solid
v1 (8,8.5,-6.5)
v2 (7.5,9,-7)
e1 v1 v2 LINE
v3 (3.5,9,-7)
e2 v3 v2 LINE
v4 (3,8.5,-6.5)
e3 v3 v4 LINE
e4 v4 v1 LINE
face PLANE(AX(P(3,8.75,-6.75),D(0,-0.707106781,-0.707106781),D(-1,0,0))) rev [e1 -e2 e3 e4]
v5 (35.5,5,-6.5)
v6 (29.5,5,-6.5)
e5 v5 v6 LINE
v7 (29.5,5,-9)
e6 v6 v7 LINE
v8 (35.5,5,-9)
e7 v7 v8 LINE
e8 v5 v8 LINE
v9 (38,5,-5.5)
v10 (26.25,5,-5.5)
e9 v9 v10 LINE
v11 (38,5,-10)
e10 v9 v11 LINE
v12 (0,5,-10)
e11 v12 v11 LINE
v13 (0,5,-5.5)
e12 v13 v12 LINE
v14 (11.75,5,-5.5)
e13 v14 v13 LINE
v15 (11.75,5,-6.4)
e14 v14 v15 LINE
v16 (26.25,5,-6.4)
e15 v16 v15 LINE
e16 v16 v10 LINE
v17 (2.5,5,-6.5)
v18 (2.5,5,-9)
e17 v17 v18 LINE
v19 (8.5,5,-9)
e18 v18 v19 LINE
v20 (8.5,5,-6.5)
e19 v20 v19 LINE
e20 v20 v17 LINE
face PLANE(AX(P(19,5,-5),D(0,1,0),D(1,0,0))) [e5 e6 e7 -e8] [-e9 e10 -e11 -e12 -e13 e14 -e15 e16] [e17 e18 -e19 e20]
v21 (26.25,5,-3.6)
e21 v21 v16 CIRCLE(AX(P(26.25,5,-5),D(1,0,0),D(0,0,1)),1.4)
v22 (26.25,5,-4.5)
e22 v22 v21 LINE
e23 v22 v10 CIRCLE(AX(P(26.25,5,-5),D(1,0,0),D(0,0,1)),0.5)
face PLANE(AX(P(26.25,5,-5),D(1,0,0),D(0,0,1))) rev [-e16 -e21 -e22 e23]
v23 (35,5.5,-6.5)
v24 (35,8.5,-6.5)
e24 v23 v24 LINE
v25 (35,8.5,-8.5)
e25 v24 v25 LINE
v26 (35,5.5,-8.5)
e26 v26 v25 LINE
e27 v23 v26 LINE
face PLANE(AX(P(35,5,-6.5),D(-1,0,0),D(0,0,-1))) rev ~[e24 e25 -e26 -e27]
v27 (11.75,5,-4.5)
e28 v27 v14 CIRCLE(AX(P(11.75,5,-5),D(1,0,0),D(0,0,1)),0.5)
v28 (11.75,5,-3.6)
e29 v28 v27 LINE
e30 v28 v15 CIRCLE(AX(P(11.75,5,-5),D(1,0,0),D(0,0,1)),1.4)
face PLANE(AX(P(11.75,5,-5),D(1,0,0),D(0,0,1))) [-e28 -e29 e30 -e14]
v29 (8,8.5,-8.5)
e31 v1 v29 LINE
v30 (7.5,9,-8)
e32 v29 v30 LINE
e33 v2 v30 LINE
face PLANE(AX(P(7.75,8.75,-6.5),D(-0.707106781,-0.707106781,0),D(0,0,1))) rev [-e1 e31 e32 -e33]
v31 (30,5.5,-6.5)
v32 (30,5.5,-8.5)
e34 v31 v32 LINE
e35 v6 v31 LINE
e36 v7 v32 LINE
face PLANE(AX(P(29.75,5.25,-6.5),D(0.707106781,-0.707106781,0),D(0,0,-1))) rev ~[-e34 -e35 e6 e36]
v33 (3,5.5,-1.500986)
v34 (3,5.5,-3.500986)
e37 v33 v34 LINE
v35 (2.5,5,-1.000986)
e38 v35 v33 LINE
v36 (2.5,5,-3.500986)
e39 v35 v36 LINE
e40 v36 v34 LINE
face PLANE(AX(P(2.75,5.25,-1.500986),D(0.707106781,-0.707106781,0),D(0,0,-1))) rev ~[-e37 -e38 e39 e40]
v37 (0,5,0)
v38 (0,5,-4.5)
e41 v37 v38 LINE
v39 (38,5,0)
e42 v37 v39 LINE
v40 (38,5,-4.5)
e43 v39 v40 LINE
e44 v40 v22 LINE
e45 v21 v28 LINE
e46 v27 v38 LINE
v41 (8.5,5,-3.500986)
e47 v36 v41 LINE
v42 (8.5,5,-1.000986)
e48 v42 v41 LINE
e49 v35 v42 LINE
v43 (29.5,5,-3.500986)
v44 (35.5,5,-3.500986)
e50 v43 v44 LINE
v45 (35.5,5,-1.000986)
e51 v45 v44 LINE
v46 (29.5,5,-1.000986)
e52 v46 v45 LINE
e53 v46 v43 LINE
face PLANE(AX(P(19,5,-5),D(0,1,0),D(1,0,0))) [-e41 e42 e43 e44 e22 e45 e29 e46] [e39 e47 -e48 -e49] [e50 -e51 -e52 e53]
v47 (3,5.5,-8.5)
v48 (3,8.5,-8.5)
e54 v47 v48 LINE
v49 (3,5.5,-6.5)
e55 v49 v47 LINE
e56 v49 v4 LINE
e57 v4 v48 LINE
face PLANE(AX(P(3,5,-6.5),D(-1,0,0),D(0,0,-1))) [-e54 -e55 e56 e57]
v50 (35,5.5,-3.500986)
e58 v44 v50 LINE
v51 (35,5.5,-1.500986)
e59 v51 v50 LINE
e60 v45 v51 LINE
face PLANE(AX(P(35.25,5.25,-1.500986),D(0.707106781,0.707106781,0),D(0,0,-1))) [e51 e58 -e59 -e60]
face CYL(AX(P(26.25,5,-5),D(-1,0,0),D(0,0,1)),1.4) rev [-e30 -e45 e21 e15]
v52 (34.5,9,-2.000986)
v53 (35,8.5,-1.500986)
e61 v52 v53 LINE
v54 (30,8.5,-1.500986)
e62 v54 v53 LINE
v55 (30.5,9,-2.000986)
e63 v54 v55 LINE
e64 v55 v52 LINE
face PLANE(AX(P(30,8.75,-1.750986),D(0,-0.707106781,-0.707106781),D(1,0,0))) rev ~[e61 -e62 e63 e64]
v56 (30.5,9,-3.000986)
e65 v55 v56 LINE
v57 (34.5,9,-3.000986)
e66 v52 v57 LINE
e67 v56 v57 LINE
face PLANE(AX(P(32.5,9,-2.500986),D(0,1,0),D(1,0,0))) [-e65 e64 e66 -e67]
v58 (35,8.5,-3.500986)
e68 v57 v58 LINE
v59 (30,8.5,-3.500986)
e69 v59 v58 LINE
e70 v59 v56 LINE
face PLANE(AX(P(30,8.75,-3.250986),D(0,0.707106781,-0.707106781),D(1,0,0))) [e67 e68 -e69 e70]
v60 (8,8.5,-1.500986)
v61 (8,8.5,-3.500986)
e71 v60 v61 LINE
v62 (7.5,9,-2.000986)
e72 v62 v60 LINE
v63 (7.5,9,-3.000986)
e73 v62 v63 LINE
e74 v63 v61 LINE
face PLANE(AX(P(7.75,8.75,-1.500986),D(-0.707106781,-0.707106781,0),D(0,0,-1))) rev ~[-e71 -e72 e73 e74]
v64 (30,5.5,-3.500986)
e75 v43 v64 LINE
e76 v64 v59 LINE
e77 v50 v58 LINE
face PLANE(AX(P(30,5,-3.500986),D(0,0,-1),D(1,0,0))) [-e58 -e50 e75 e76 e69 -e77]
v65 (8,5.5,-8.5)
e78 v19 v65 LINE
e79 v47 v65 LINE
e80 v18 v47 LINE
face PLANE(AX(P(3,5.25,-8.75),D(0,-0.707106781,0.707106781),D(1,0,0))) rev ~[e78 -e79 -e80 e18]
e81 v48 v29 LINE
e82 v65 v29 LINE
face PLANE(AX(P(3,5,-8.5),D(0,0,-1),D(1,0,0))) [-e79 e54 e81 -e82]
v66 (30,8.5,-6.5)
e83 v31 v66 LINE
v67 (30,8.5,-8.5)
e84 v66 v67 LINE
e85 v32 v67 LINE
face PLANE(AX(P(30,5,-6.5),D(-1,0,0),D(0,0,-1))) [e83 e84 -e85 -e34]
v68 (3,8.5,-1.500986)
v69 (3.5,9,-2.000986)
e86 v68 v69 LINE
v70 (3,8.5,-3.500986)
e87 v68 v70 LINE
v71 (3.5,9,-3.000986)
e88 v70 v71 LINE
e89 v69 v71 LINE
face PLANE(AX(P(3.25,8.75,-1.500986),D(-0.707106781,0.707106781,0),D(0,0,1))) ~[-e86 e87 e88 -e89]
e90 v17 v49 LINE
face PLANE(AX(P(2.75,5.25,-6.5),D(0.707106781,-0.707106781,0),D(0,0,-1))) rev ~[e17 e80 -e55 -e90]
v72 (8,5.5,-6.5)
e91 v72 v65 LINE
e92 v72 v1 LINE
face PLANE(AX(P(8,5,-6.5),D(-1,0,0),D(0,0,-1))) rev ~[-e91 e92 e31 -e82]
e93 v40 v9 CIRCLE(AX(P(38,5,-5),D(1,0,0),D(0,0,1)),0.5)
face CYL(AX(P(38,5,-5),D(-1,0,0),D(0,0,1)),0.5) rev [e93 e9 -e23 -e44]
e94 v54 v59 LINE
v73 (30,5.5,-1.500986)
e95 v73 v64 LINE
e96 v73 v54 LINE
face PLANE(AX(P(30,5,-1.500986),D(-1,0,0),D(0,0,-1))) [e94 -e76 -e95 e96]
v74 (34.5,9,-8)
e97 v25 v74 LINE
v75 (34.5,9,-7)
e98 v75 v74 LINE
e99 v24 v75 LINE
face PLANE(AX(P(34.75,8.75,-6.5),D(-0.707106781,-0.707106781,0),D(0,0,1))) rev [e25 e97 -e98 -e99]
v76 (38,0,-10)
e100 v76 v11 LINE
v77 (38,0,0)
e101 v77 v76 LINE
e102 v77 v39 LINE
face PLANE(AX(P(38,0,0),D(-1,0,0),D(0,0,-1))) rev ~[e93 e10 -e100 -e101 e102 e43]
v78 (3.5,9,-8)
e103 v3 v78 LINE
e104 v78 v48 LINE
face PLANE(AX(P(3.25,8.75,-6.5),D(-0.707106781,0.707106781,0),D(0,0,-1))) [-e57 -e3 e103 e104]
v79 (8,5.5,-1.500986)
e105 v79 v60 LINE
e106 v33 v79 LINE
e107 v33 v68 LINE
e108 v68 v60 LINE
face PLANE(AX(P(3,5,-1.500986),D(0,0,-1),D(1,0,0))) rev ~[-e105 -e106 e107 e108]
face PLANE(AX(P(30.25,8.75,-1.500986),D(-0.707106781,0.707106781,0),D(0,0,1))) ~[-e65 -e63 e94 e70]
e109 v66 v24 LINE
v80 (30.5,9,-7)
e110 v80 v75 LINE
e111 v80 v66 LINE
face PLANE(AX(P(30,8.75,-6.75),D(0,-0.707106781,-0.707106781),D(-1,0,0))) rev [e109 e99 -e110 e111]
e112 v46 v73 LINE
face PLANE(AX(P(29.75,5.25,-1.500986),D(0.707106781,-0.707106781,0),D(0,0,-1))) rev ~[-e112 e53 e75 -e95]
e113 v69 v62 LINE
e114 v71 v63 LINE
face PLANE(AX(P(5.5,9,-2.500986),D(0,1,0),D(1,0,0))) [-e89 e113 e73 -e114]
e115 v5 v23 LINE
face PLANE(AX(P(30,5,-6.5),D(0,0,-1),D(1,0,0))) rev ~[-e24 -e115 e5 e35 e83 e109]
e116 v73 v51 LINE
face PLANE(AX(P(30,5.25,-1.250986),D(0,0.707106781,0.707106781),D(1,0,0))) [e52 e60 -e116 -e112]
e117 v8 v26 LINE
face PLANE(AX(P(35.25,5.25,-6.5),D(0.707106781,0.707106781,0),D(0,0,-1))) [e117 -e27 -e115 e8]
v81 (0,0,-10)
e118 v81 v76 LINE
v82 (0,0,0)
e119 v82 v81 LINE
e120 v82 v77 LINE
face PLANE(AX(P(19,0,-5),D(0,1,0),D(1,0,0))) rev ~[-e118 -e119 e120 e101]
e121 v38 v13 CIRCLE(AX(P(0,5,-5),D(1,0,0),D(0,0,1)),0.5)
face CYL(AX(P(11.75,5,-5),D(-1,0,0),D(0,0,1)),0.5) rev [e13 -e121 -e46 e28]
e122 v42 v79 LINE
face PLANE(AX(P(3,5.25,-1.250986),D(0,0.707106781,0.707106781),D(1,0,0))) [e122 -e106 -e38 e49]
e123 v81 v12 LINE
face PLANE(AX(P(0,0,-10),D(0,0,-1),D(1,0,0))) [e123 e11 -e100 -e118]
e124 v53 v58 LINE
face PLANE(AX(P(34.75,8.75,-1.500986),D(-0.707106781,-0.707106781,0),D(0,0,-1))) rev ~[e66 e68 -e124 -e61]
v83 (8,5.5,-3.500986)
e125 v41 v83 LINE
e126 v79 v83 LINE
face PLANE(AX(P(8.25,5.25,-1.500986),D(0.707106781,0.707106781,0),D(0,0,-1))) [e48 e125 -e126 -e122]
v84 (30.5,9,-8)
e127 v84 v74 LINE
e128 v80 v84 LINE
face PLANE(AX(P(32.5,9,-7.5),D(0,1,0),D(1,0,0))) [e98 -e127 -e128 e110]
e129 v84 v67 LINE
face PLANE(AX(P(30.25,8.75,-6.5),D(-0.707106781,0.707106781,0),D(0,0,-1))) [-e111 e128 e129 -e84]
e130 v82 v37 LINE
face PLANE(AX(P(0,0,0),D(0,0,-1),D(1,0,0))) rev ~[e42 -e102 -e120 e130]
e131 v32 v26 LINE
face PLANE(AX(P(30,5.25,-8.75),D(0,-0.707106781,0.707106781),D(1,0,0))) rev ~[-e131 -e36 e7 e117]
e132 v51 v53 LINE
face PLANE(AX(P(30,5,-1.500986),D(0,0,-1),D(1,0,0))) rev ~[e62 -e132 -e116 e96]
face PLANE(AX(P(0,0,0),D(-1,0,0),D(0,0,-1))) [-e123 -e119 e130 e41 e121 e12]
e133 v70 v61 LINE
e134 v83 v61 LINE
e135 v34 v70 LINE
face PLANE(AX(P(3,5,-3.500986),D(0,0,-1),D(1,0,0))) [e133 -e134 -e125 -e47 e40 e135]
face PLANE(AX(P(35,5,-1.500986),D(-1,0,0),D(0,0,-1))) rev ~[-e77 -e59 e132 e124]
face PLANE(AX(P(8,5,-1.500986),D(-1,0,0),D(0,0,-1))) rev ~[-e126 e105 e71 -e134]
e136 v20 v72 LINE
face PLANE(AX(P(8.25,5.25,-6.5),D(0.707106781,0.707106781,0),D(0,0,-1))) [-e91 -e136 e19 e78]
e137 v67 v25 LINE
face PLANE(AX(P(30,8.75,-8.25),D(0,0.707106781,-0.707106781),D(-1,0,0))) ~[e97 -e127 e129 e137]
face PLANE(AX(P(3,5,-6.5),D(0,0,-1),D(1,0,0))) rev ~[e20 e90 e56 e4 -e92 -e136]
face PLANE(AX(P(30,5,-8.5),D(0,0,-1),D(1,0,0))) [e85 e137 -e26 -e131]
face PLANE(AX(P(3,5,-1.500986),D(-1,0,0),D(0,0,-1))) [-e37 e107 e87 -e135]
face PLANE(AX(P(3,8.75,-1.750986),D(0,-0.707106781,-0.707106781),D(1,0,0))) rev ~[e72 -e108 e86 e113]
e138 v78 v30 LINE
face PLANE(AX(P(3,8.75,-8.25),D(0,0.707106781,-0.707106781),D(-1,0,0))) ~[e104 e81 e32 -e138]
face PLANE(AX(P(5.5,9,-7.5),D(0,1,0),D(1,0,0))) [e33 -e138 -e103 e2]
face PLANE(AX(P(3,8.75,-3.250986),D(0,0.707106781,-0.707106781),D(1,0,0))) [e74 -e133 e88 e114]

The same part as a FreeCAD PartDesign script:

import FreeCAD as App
import Part
import Sketcher

V = App.Vector


def edges_at(feature, points):
    """Names of the edges that pass closest to the given points."""
    edges = feature.Shape.Edges
    near = lambda p: min(range(len(edges)), key=lambda i: edges[i].distToShape(Part.Vertex(*p))[0])
    return sorted({f"Edge{near(p) + 1}" for p in points})

doc = App.newDocument("Part")
body = doc.addObject("PartDesign::Body", "Body")

# Sketch on XZ plane
sketch1 = body.newObject("Sketcher::SketchObject", "Sketch")
sketch1.AttachmentSupport = (doc.getObject("XZ_Plane"), [""])
sketch1.MapMode = "FlatFace"
sketch1.addGeometry([
    Part.LineSegment(V(0, -10, 0), V(0, 0, 0)),
    Part.LineSegment(V(0, 0, 0), V(38, 0, 0)),
    Part.LineSegment(V(38, 0, 0), V(38, -10, 0)),
    Part.LineSegment(V(38, -10, 0), V(0, -10, 0)),
], False)
sketch1.addConstraint([
    Sketcher.Constraint("Coincident", 0, 2, 1, 1),
    Sketcher.Constraint("Coincident", 1, 2, 2, 1),
    Sketcher.Constraint("Coincident", 2, 2, 3, 1),
    Sketcher.Constraint("Coincident", 3, 2, 0, 1),
    Sketcher.Constraint("Vertical", 0),
    Sketcher.Constraint("Horizontal", 1),
    Sketcher.Constraint("Vertical", 2),
    Sketcher.Constraint("Horizontal", 3),
    Sketcher.Constraint("Coincident", 0, 2, -1, 1),
    Sketcher.Constraint("DistanceX", 1, 1, 1, 2, 38.0),
    Sketcher.Constraint("DistanceY", 0, 1, 0, 2, 10.0),
])
pad1 = body.newObject("PartDesign::Pad", "Pad")
pad1.Profile = sketch1
pad1.Length = 5
pad1.Reversed = True

# Sketch on XZ plane
sketch2 = body.newObject("Sketcher::SketchObject", "Sketch001")
sketch2.AttachmentSupport = (doc.getObject("XZ_Plane"), [""])
sketch2.MapMode = "FlatFace"
sketch2.AttachmentOffset = App.Placement(V(0, 0, -5), App.Rotation())
sketch2.addGeometry([
    Part.LineSegment(V(38, -5, 0), V(0, -5, 0)),  # 0
    Part.LineSegment(V(0, -5, 0), V(0, -4.5, 0)),  # 1
    Part.LineSegment(V(0, -4.5, 0), V(11.8, -4.5, 0)),  # 2
    Part.LineSegment(V(11.8, -4.5, 0), V(11.8, -3.6, 0)),  # 3
    Part.LineSegment(V(11.8, -3.6, 0), V(26.2, -3.6, 0)),  # 4
    Part.LineSegment(V(26.2, -3.6, 0), V(26.2, -4.5, 0)),  # 5
    Part.LineSegment(V(26.2, -4.5, 0), V(38, -4.5, 0)),  # 6
    Part.LineSegment(V(38, -4.5, 0), V(38, -5, 0)),  # 7
], False)
sketch2.addGeometry(Part.LineSegment(V(0, -5, 0), V(38, -5, 0)), True)  # axis
sketch2.addConstraint([
    Sketcher.Constraint("Coincident", 0, 2, 1, 1),
    Sketcher.Constraint("Coincident", 1, 2, 2, 1),
    Sketcher.Constraint("Coincident", 2, 2, 3, 1),
    Sketcher.Constraint("Coincident", 3, 2, 4, 1),
    Sketcher.Constraint("Coincident", 4, 2, 5, 1),
    Sketcher.Constraint("Coincident", 5, 2, 6, 1),
    Sketcher.Constraint("Coincident", 6, 2, 7, 1),
    Sketcher.Constraint("Coincident", 7, 2, 0, 1),
    Sketcher.Constraint("Horizontal", 0),
    Sketcher.Constraint("Vertical", 1),
    Sketcher.Constraint("Horizontal", 2),
    Sketcher.Constraint("Vertical", 3),
    Sketcher.Constraint("Horizontal", 4),
    Sketcher.Constraint("Vertical", 5),
    Sketcher.Constraint("Horizontal", 6),
    Sketcher.Constraint("Vertical", 7),
    Sketcher.Constraint("Horizontal", 8),
    Sketcher.Constraint("Coincident", 8, 1, 0, 2),
    Sketcher.Constraint("PointOnObject", 0, 2, -2),
    Sketcher.Constraint("Horizontal", 2, 2, 5, 2),
    Sketcher.Constraint("Vertical", 6, 2, 8, 2),
    Sketcher.Constraint("Equal", 2, 6),
    Sketcher.Constraint("DistanceX", 0, 2, 0, 1, 38.0),
    Sketcher.Constraint("DistanceX", 4, 1, 4, 2, 14.5),
    Sketcher.Constraint("DistanceY", 1, 1, 1, 2, 0.5),
    Sketcher.Constraint("DistanceY", 3, 1, 3, 2, 0.9),
    Sketcher.Constraint("DistanceY", 0, 2, -1, 1, 5.0),
])
groove = body.newObject("PartDesign::Groove", "Groove")
groove.Profile = sketch2
groove.ReferenceAxis = (sketch2, ["Axis0"])
groove.Angle = 360

# Sketch on XZ plane
sketch3 = body.newObject("Sketcher::SketchObject", "Sketch002")
sketch3.AttachmentSupport = (doc.getObject("XZ_Plane"), [""])
sketch3.MapMode = "FlatFace"
sketch3.AttachmentOffset = App.Placement(V(0, 0, -5), App.Rotation())
sketch3.addGeometry([
    Part.LineSegment(V(3, -8.5, 0), V(3, -6.5, 0)),  # 0
    Part.LineSegment(V(3, -6.5, 0), V(8, -6.5, 0)),  # 1
    Part.LineSegment(V(8, -6.5, 0), V(8, -8.5, 0)),  # 2
    Part.LineSegment(V(8, -8.5, 0), V(3, -8.5, 0)),  # 3
    Part.LineSegment(V(30, -8.5, 0), V(30, -6.5, 0)),  # 4
    Part.LineSegment(V(30, -6.5, 0), V(35, -6.5, 0)),  # 5
    Part.LineSegment(V(35, -6.5, 0), V(35, -8.5, 0)),  # 6
    Part.LineSegment(V(35, -8.5, 0), V(30, -8.5, 0)),  # 7
    Part.LineSegment(V(30, -3.5, 0), V(30, -1.5, 0)),  # 8
    Part.LineSegment(V(30, -1.5, 0), V(35, -1.5, 0)),  # 9
    Part.LineSegment(V(35, -1.5, 0), V(35, -3.5, 0)),  # 10
    Part.LineSegment(V(35, -3.5, 0), V(30, -3.5, 0)),  # 11
    Part.LineSegment(V(3, -3.5, 0), V(3, -1.5, 0)),  # 12
    Part.LineSegment(V(3, -1.5, 0), V(8, -1.5, 0)),  # 13
    Part.LineSegment(V(8, -1.5, 0), V(8, -3.5, 0)),  # 14
    Part.LineSegment(V(8, -3.5, 0), V(3, -3.5, 0)),  # 15
], False)
sketch3.addConstraint([
    Sketcher.Constraint("Coincident", 0, 2, 1, 1),
    Sketcher.Constraint("Coincident", 1, 2, 2, 1),
    Sketcher.Constraint("Coincident", 2, 2, 3, 1),
    Sketcher.Constraint("Coincident", 3, 2, 0, 1),
    Sketcher.Constraint("Coincident", 4, 2, 5, 1),
    Sketcher.Constraint("Coincident", 5, 2, 6, 1),
    Sketcher.Constraint("Coincident", 6, 2, 7, 1),
    Sketcher.Constraint("Coincident", 7, 2, 4, 1),
    Sketcher.Constraint("Coincident", 8, 2, 9, 1),
    Sketcher.Constraint("Coincident", 9, 2, 10, 1),
    Sketcher.Constraint("Coincident", 10, 2, 11, 1),
    Sketcher.Constraint("Coincident", 11, 2, 8, 1),
    Sketcher.Constraint("Coincident", 12, 2, 13, 1),
    Sketcher.Constraint("Coincident", 13, 2, 14, 1),
    Sketcher.Constraint("Coincident", 14, 2, 15, 1),
    Sketcher.Constraint("Coincident", 15, 2, 12, 1),
    Sketcher.Constraint("Vertical", 0),
    Sketcher.Constraint("Horizontal", 1),
    Sketcher.Constraint("Vertical", 2),
    Sketcher.Constraint("Horizontal", 3),
    Sketcher.Constraint("Vertical", 4),
    Sketcher.Constraint("Horizontal", 5),
    Sketcher.Constraint("Vertical", 6),
    Sketcher.Constraint("Horizontal", 7),
    Sketcher.Constraint("Vertical", 8),
    Sketcher.Constraint("Horizontal", 9),
    Sketcher.Constraint("Vertical", 10),
    Sketcher.Constraint("Horizontal", 11),
    Sketcher.Constraint("Vertical", 12),
    Sketcher.Constraint("Horizontal", 13),
    Sketcher.Constraint("Vertical", 14),
    Sketcher.Constraint("Horizontal", 15),
    Sketcher.Constraint("Horizontal", 1, 2, 4, 2),
    Sketcher.Constraint("Horizontal", 3, 2, 6, 2),
    Sketcher.Constraint("Horizontal", 9, 2, 12, 2),
    Sketcher.Constraint("Horizontal", 11, 2, 14, 2),
    Sketcher.Constraint("Vertical", 7, 2, 8, 2),
    Sketcher.Constraint("Vertical", 6, 2, 9, 2),
    Sketcher.Constraint("Vertical", 3, 2, 12, 2),
    Sketcher.Constraint("Vertical", 2, 2, 13, 2),
    Sketcher.Constraint("Equal", 3, 5),
    Sketcher.Constraint("Equal", 6, 8),
    Sketcher.Constraint("DistanceX", 1, 1, 1, 2, 5.0),
    Sketcher.Constraint("DistanceY", 0, 1, 0, 2, 2.0),
    Sketcher.Constraint("DistanceX", -1, 1, 0, 2, 3.0),
    Sketcher.Constraint("DistanceX", -1, 1, 4, 2, 30.0),
    Sketcher.Constraint("DistanceY", 0, 2, -1, 1, 6.5),
    Sketcher.Constraint("DistanceY", 8, 2, -1, 1, 1.500986),
])
pad2 = body.newObject("PartDesign::Pad", "Pad001")
pad2.Profile = sketch3
pad2.Length = 4
pad2.Reversed = True
doc.recompute()

chamfer = body.newObject("PartDesign::Chamfer", "Chamfer")
chamfer.Base = (pad2, edges_at(pad2, [
    (3, 5, -7.5),
    (8, 5, -7.5),
    (5.5, 5, -8.5),
    (30, 5, -7.5),
    (35, 5, -7.5),
    (32.5, 5, -8.5),
    (30, 5, -2.501),
    (32.5, 5, -1.501),
    (35, 5, -2.501),
    (3, 5, -2.501),
    (5.5, 5, -1.501),
    (8, 5, -2.501),
]))
chamfer.Size = 0.5
doc.recompute()

chamfer2 = body.newObject("PartDesign::Chamfer", "Chamfer001")
chamfer2.Base = (chamfer, edges_at(chamfer, [
    (3, 9, -7.5),
    (5.5, 9, -6.5),
    (8, 9, -7.5),
    (5.5, 9, -8.5),
    (30, 9, -7.5),
    (32.5, 9, -6.5),
    (35, 9, -7.5),
    (32.5, 9, -8.5),
    (30, 9, -2.501),
    (32.5, 9, -1.501),
    (35, 9, -2.501),
    (32.5, 9, -3.501),
    (3, 9, -2.501),
    (5.5, 9, -1.501),
    (8, 9, -2.501),
    (5.5, 9, -3.501),
]))
chamfer2.Size = 0.5

doc.recompute()
